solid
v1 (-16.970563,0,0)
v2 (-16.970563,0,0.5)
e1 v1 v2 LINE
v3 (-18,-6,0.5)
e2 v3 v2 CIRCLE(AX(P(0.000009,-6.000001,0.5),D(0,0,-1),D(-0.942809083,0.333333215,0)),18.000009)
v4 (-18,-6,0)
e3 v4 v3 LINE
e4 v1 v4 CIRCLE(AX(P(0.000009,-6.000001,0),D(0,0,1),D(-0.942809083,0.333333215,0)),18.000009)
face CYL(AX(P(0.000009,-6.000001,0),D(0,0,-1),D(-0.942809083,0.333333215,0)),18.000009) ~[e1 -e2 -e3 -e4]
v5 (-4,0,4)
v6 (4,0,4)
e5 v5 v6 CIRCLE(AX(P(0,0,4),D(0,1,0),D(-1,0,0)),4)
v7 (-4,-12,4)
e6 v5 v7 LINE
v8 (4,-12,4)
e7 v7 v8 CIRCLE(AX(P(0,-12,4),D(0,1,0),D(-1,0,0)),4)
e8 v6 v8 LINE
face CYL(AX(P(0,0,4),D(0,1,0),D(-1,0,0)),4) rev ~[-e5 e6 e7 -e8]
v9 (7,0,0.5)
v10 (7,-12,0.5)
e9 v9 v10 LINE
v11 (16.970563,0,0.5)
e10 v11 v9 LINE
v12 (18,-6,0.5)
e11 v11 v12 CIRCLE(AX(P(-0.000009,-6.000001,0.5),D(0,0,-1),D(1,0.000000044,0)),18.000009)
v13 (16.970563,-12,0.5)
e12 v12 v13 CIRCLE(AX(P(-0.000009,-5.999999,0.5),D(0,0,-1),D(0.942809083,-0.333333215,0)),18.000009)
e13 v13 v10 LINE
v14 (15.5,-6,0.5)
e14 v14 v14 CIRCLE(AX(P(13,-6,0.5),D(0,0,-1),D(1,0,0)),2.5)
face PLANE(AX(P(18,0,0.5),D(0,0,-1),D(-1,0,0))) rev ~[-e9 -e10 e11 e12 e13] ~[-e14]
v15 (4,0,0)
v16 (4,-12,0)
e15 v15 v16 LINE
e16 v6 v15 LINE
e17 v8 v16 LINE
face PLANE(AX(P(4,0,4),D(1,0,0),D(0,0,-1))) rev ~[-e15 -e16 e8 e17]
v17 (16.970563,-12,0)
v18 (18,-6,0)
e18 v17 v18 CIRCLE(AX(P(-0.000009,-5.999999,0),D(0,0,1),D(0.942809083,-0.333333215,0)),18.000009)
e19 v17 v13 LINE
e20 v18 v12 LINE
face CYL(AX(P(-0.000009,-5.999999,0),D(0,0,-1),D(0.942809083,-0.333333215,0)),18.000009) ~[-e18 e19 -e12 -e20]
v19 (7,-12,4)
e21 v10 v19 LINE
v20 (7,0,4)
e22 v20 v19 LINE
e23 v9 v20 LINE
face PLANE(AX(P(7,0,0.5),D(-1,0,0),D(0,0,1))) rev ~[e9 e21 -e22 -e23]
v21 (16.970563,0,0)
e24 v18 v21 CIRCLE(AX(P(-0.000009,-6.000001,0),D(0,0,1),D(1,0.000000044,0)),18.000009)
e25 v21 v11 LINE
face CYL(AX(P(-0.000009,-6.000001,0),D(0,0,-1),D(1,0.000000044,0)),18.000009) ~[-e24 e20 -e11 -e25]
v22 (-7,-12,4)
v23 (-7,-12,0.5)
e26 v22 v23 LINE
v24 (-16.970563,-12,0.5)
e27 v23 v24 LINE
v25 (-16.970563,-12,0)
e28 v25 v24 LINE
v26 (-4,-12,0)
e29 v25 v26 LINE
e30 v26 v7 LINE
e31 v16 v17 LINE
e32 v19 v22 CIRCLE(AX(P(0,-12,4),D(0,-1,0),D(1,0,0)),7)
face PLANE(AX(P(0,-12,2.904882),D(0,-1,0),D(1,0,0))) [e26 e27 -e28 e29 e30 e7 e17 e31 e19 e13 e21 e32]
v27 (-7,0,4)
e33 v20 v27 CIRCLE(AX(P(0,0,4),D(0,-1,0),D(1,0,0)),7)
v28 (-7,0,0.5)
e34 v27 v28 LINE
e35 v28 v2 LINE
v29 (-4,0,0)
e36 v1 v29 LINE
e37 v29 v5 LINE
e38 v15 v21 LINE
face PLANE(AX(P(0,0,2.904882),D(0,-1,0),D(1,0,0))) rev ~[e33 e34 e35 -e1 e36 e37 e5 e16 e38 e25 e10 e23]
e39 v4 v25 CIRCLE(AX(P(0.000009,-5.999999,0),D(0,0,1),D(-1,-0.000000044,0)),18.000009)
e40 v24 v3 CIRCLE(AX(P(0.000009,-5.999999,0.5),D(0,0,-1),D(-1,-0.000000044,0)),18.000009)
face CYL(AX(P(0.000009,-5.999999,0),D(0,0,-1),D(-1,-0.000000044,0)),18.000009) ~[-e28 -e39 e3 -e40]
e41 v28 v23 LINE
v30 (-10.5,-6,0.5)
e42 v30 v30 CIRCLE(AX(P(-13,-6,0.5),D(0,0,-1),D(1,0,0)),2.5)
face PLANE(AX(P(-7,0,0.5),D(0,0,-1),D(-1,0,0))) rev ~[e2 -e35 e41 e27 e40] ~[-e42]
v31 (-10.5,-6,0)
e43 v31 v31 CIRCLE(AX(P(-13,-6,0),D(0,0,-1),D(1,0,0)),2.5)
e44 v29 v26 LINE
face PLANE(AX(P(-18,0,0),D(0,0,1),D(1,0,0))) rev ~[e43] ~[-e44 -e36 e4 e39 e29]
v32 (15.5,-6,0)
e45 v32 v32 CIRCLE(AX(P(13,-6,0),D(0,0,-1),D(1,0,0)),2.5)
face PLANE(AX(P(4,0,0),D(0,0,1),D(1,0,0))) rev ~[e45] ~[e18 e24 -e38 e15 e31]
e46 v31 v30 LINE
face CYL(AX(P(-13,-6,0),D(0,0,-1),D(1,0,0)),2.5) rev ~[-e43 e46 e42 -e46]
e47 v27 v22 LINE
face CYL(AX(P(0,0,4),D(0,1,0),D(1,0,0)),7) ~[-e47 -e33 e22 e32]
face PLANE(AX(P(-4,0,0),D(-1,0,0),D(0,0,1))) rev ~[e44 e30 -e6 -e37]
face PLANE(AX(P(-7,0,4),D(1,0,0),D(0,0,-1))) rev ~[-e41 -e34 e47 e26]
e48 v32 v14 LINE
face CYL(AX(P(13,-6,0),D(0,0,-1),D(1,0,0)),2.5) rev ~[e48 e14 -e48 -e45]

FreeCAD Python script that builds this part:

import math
import FreeCAD as App
import Part
import Sketcher

doc = App.newDocument("Part")
body = doc.addObject("PartDesign::Body", "Body")

# Sketch on XZ plane
sketch1 = body.newObject("Sketcher::SketchObject", "Sketch")
sketch1.AttachmentSupport = (doc.getObject("XZ_Plane"), [""])
sketch1.MapMode = "FlatFace"
sketch1.addGeometry(Part.ArcOfCircle(Part.Circle(App.Vector(0, 4, 0), App.Vector(0, 0, 1), 4), math.radians(0), math.radians(180)), False)
sketch1.addGeometry(Part.LineSegment(App.Vector(4, 4, 0), App.Vector(4, 0, 0)), False)
sketch1.addGeometry(Part.LineSegment(App.Vector(4, 0, 0), App.Vector(18, 0, 0)), False)
sketch1.addGeometry(Part.LineSegment(App.Vector(18, 0, 0), App.Vector(18, 0.5, 0)), False)
sketch1.addGeometry(Part.LineSegment(App.Vector(18, 0.5, 0), App.Vector(7, 0.5, 0)), False)
sketch1.addGeometry(Part.LineSegment(App.Vector(7, 0.5, 0), App.Vector(7, 4, 0)), False)
sketch1.addGeometry(Part.ArcOfCircle(Part.Circle(App.Vector(0, 4, 0), App.Vector(0, 0, 1), 7), math.radians(0), math.radians(180)), False)
sketch1.addGeometry(Part.LineSegment(App.Vector(-7, 4, 0), App.Vector(-7, 0.5, 0)), False)
sketch1.addGeometry(Part.LineSegment(App.Vector(-7, 0.5, 0), App.Vector(-18, 0.5, 0)), False)
sketch1.addGeometry(Part.LineSegment(App.Vector(-18, 0.5, 0), App.Vector(-18, 0, 0)), False)
sketch1.addGeometry(Part.LineSegment(App.Vector(-18, 0, 0), App.Vector(-4, 0, 0)), False)
sketch1.addGeometry(Part.LineSegment(App.Vector(-4, 0, 0), App.Vector(-4, 4, 0)), False)
sketch1.addConstraint(Sketcher.Constraint("Tangent", 0, 1, 1, 1))
sketch1.addConstraint(Sketcher.Constraint("Coincident", 1, 2, 2, 1))
sketch1.addConstraint(Sketcher.Constraint("Coincident", 2, 2, 3, 1))
sketch1.addConstraint(Sketcher.Constraint("Coincident", 3, 2, 4, 1))
sketch1.addConstraint(Sketcher.Constraint("Coincident", 4, 2, 5, 1))
sketch1.addConstraint(Sketcher.Constraint("Tangent", 5, 2, 6, 1))
sketch1.addConstraint(Sketcher.Constraint("Tangent", 6, 2, 7, 1))
sketch1.addConstraint(Sketcher.Constraint("Coincident", 7, 2, 8, 1))
sketch1.addConstraint(Sketcher.Constraint("Coincident", 8, 2, 9, 1))
sketch1.addConstraint(Sketcher.Constraint("Coincident", 9, 2, 10, 1))
sketch1.addConstraint(Sketcher.Constraint("Coincident", 10, 2, 11, 1))
sketch1.addConstraint(Sketcher.Constraint("Tangent", 11, 2, 0, 2))
sketch1.addConstraint(Sketcher.Constraint("Vertical", 1))
sketch1.addConstraint(Sketcher.Constraint("Horizontal", 2))
sketch1.addConstraint(Sketcher.Constraint("Vertical", 3))
sketch1.addConstraint(Sketcher.Constraint("Horizontal", 4))
sketch1.addConstraint(Sketcher.Constraint("Vertical", 5))
sketch1.addConstraint(Sketcher.Constraint("Vertical", 7))
sketch1.addConstraint(Sketcher.Constraint("Horizontal", 8))
sketch1.addConstraint(Sketcher.Constraint("Vertical", 9))
sketch1.addConstraint(Sketcher.Constraint("Horizontal", 10))
sketch1.addConstraint(Sketcher.Constraint("Vertical", 11))
sketch1.addConstraint(Sketcher.Constraint("Coincident", 6, 3, 0, 3))
sketch1.addConstraint(Sketcher.Constraint("Symmetric", 2, 2, 9, 2, -1, 1))
sketch1.addConstraint(Sketcher.Constraint("Symmetric", 4, 2, 7, 2, -2))
sketch1.addConstraint(Sketcher.Constraint("PointOnObject", 1, 2, -1))
sketch1.addConstraint(Sketcher.Constraint("Radius", 0, 4.0))
sketch1.addConstraint(Sketcher.Constraint("Radius", 6, 7.0))
sketch1.addConstraint(Sketcher.Constraint("DistanceX", 2, 1, 2, 2, 14.0))
sketch1.addConstraint(Sketcher.Constraint("DistanceY", 1, 2, 1, 1, 4.0))
sketch1.addConstraint(Sketcher.Constraint("DistanceY", 3, 1, 3, 2, 0.5))
pad1 = body.newObject("PartDesign::Pad", "Pad")
pad1.Profile = sketch1
pad1.Length = 12

# Sketch on XY plane
sketch2 = body.newObject("Sketcher::SketchObject", "Sketch001")
sketch2.AttachmentSupport = (doc.getObject("XY_Plane"), [""])
sketch2.MapMode = "FlatFace"
sketch2.addGeometry(Part.Circle(App.Vector(-13, -6, 0), App.Vector(0, 0, 1), 2.5), False)
sketch2.addGeometry(Part.Circle(App.Vector(13, -6, 0), App.Vector(0, 0, 1), 2.5), False)
sketch2.addGeometry(Part.ArcOfCircle(Part.Circle(App.Vector(0, -6, 0), App.Vector(0, 0, 1), 18), math.radians(160.53), math.radians(180)), False)
sketch2.addGeometry(Part.LineSegment(App.Vector(-18, -6, 0), App.Vector(-18, 0, 0)), False)
sketch2.addGeometry(Part.LineSegment(App.Vector(-18, 0, 0), App.Vector(-17, 0, 0)), False)
sketch2.addGeometry(Part.ArcOfCircle(Part.Circle(App.Vector(0, -6, 0), App.Vector(0, 0, 1), 18), math.radians(-180), math.radians(-160.53)), False)
sketch2.addGeometry(Part.LineSegment(App.Vector(-17, -12, 0), App.Vector(-18, -12, 0)), False)
sketch2.addGeometry(Part.LineSegment(App.Vector(-18, -12, 0), App.Vector(-18, -6, 0)), False)
sketch2.addGeometry(Part.ArcOfCircle(Part.Circle(App.Vector(0, -6, 0), App.Vector(0, 0, 1), 18), math.radians(-19.47), math.radians(0)), False)
sketch2.addGeometry(Part.LineSegment(App.Vector(18, -6, 0), App.Vector(18, -12, 0)), False)
sketch2.addGeometry(Part.LineSegment(App.Vector(18, -12, 0), App.Vector(17, -12, 0)), False)
sketch2.addGeometry(Part.LineSegment(App.Vector(17, 0, 0), App.Vector(18, 0, 0)), False)
sketch2.addGeometry(Part.LineSegment(App.Vector(18, 0, 0), App.Vector(18, -6, 0)), False)
sketch2.addGeometry(Part.ArcOfCircle(Part.Circle(App.Vector(0, -6, 0), App.Vector(0, 0, 1), 18), math.radians(0), math.radians(19.47)), False)
sketch2.addConstraint(Sketcher.Constraint("Tangent", 2, 2, 3, 1))
sketch2.addConstraint(Sketcher.Constraint("Coincident", 3, 2, 4, 1))
sketch2.addConstraint(Sketcher.Constraint("Coincident", 4, 2, 2, 1))
sketch2.addConstraint(Sketcher.Constraint("Coincident", 5, 2, 6, 1))
sketch2.addConstraint(Sketcher.Constraint("Coincident", 6, 2, 7, 1))
sketch2.addConstraint(Sketcher.Constraint("Tangent", 7, 2, 5, 1))
sketch2.addConstraint(Sketcher.Constraint("Tangent", 8, 2, 9, 1))
sketch2.addConstraint(Sketcher.Constraint("Coincident", 9, 2, 10, 1))
sketch2.addConstraint(Sketcher.Constraint("Coincident", 10, 2, 8, 1))
sketch2.addConstraint(Sketcher.Constraint("Coincident", 11, 2, 12, 1))
sketch2.addConstraint(Sketcher.Constraint("Tangent", 12, 2, 13, 1))
sketch2.addConstraint(Sketcher.Constraint("Coincident", 13, 2, 11, 1))
sketch2.addConstraint(Sketcher.Constraint("Vertical", 3))
sketch2.addConstraint(Sketcher.Constraint("Horizontal", 4))
sketch2.addConstraint(Sketcher.Constraint("Horizontal", 6))
sketch2.addConstraint(Sketcher.Constraint("Vertical", 7))
sketch2.addConstraint(Sketcher.Constraint("Vertical", 9))
sketch2.addConstraint(Sketcher.Constraint("Horizontal", 10))
sketch2.addConstraint(Sketcher.Constraint("Horizontal", 11))
sketch2.addConstraint(Sketcher.Constraint("Vertical", 12))
sketch2.addConstraint(Sketcher.Constraint("Coincident", 5, 3, 2, 3))
sketch2.addConstraint(Sketcher.Constraint("Coincident", 13, 3, 8, 3))
sketch2.addConstraint(Sketcher.Constraint("Equal", 0, 1))
sketch2.addConstraint(Sketcher.Constraint("Equal", 2, 5))
sketch2.addConstraint(Sketcher.Constraint("Equal", 5, 8))
sketch2.addConstraint(Sketcher.Constraint("Equal", 8, 13))
sketch2.addConstraint(Sketcher.Constraint("Symmetric", 3, 2, 11, 2, -1, 1))
sketch2.addConstraint(Sketcher.Constraint("Symmetric", 0, 3, 1, 3, -2))
sketch2.addConstraint(Sketcher.Constraint("Symmetric", 5, 2, 10, 2, -2))
sketch2.addConstraint(Sketcher.Constraint("PointOnObject", 3, 2, -1))
sketch2.addConstraint(Sketcher.Constraint("Horizontal", 1, 3, 2, 3))
sketch2.addConstraint(Sketcher.Constraint("Vertical", 4, 2, 5, 2))
sketch2.addConstraint(Sketcher.Constraint("Diameter", 0, 5.0))
sketch2.addConstraint(Sketcher.Constraint("DistanceY", 3, 1, 3, 2, 6.0))
sketch2.addConstraint(Sketcher.Constraint("DistanceX", 0, 3, -1, 1, 13.0))
sketch2.addConstraint(Sketcher.Constraint("DistanceX", 2, 2, -1, 1, 18.0))
sketch2.addConstraint(Sketcher.Constraint("Radius", 2, 18.000009))
pocket1 = body.newObject("PartDesign::Pocket", "Pocket")
pocket1.Profile = sketch2
pocket1.Length = 25
pocket1.Reversed = True

doc.recompute()
